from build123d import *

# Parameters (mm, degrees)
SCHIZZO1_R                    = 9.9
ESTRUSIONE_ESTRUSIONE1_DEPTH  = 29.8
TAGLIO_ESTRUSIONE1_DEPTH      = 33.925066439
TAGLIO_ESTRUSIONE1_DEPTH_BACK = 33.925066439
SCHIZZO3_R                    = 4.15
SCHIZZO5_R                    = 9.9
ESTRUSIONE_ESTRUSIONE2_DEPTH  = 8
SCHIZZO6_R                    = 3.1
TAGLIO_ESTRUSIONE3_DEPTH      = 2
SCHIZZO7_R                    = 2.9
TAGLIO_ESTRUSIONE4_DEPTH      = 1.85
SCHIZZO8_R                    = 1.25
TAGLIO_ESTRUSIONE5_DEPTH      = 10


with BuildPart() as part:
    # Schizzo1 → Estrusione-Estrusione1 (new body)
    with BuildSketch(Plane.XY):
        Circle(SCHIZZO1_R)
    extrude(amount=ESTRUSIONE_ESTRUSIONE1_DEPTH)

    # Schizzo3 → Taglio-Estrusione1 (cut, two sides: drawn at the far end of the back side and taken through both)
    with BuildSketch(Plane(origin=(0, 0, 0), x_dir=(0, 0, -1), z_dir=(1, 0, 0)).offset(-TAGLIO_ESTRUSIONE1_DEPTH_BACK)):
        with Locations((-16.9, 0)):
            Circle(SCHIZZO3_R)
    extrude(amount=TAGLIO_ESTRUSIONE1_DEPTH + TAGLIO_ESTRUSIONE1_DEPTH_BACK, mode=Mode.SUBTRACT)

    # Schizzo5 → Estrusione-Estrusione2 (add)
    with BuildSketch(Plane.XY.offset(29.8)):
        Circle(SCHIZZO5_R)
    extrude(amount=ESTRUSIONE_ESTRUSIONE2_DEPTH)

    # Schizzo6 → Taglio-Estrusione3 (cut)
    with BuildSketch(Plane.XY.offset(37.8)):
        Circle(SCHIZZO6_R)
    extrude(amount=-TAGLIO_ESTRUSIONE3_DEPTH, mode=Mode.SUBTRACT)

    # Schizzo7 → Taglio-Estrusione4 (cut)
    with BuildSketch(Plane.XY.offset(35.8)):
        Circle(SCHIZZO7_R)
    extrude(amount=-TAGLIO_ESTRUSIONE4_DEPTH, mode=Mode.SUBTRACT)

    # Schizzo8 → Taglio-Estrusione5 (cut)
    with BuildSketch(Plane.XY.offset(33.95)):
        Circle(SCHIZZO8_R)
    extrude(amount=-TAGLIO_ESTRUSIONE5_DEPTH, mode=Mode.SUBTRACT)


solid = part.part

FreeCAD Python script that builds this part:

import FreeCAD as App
import Part
import Sketcher

V = App.Vector

doc = App.newDocument("Part")
params = doc.addObject("Spreadsheet::Sheet", "Params")
for row, (alias, value) in enumerate([
    ("sketch1_diameter", "19.8 mm"),
    ("pad1_length", "29.8 mm"),
    ("sketch2_diameter", "8.3 mm"),
    ("sketch3_diameter", "19.8 mm"),
    ("pad2_length", "8 mm"),
    ("sketch4_diameter", "6.2 mm"),
    ("pocket2_length", "2 mm"),
    ("sketch5_diameter", "5.8 mm"),
    ("pocket3_length", "1.85 mm"),
    ("sketch6_diameter", "2.5 mm"),
    ("pocket4_length", "10 mm"),
], start=1):
    params.set(f"A{row}", alias)
    params.set(f"B{row}", "=" + value)
    params.setAlias(f"B{row}", alias)

body = doc.addObject("PartDesign::Body", "Body")

# Sketch on XY plane
sketch1 = doc.addObject("Sketcher::SketchObject", "Sketch")
body.addObject(sketch1)
sketch1.AttachmentSupport = (doc.XY_Plane, [""])
sketch1.MapMode = "FlatFace"
sketch1.addGeometry(Part.Circle(V(0, 0, 0), V(0, 0, 1), 10), False)
sketch1.addConstraint(Sketcher.Constraint("Coincident", 0, 3, -1, 1))
sketch1.addConstraint(Sketcher.Constraint("Diameter", 0, 19.8))
sketch1.setExpression("Constraints[1]", "Params.sketch1_diameter")
pad1 = doc.addObject("PartDesign::Pad", "Pad")
body.addObject(pad1)
pad1.Profile = sketch1
pad1.setExpression("Length", "Params.pad1_length")

# Sketch on YZ plane
sketch2 = doc.addObject("Sketcher::SketchObject", "Sketch001")
body.addObject(sketch2)
sketch2.AttachmentSupport = (doc.YZ_Plane, [""])
sketch2.MapMode = "FlatFace"
sketch2.addGeometry(Part.Circle(V(0, 16.9, 0), V(0, 0, 1), 4.2), False)
sketch2.addConstraint(Sketcher.Constraint("PointOnObject", 0, 3, -2))
sketch2.addConstraint(Sketcher.Constraint("Diameter", 0, 8.3))
sketch2.addConstraint(Sketcher.Constraint("DistanceY", -1, 1, 0, 3, 16.9))
sketch2.setExpression("Constraints[1]", "Params.sketch2_diameter")
pocket1 = doc.addObject("PartDesign::Pocket", "Pocket")
body.addObject(pocket1)
pocket1.Profile = sketch2
pocket1.Type = "ThroughAll"
pocket1.Midplane = True

# Sketch on XY plane
sketch3 = doc.addObject("Sketcher::SketchObject", "Sketch002")
body.addObject(sketch3)
sketch3.AttachmentSupport = (doc.XY_Plane, [""])
sketch3.MapMode = "FlatFace"
sketch3.AttachmentOffset = App.Placement(V(0, 0, 29.8), App.Rotation())
sketch3.addGeometry(Part.Circle(V(0, 0, 0), V(0, 0, 1), 10), False)
sketch3.addConstraint(Sketcher.Constraint("Coincident", 0, 3, -1, 1))
sketch3.addConstraint(Sketcher.Constraint("Diameter", 0, 19.8))
sketch3.setExpression("Constraints[1]", "Params.sketch3_diameter")
pad2 = doc.addObject("PartDesign::Pad", "Pad001")
body.addObject(pad2)
pad2.Profile = sketch3
pad2.setExpression("Length", "Params.pad2_length")

# Sketch on XY plane
sketch4 = doc.addObject("Sketcher::SketchObject", "Sketch003")
body.addObject(sketch4)
sketch4.AttachmentSupport = (doc.XY_Plane, [""])
sketch4.MapMode = "FlatFace"
sketch4.AttachmentOffset = App.Placement(V(0, 0, 37.8), App.Rotation())
sketch4.addGeometry(Part.Circle(V(0, 0, 0), V(0, 0, 1), 3.1), False)
sketch4.addConstraint(Sketcher.Constraint("Coincident", 0, 3, -1, 1))
sketch4.addConstraint(Sketcher.Constraint("Diameter", 0, 6.2))
sketch4.setExpression("Constraints[1]", "Params.sketch4_diameter")
pocket2 = doc.addObject("PartDesign::Pocket", "Pocket001")
body.addObject(pocket2)
pocket2.Profile = sketch4
pocket2.setExpression("Length", "Params.pocket2_length")

# Sketch on XY plane
sketch5 = doc.addObject("Sketcher::SketchObject", "Sketch004")
body.addObject(sketch5)
sketch5.AttachmentSupport = (doc.XY_Plane, [""])
sketch5.MapMode = "FlatFace"
sketch5.AttachmentOffset = App.Placement(V(0, 0, 35.8), App.Rotation())
sketch5.addGeometry(Part.Circle(V(0, 0, 0), V(0, 0, 1), 2.9), False)
sketch5.addConstraint(Sketcher.Constraint("Coincident", 0, 3, -1, 1))
sketch5.addConstraint(Sketcher.Constraint("Diameter", 0, 5.8))
sketch5.setExpression("Constraints[1]", "Params.sketch5_diameter")
pocket3 = doc.addObject("PartDesign::Pocket", "Pocket002")
body.addObject(pocket3)
pocket3.Profile = sketch5
pocket3.setExpression("Length", "Params.pocket3_length")

# Sketch on XY plane
sketch6 = doc.addObject("Sketcher::SketchObject", "Sketch005")
body.addObject(sketch6)
sketch6.AttachmentSupport = (doc.XY_Plane, [""])
sketch6.MapMode = "FlatFace"
sketch6.AttachmentOffset = App.Placement(V(0, 0, 33.95), App.Rotation())
sketch6.addGeometry(Part.Circle(V(0, 0, 0), V(0, 0, 1), 1.2), False)
sketch6.addConstraint(Sketcher.Constraint("Coincident", 0, 3, -1, 1))
sketch6.addConstraint(Sketcher.Constraint("Diameter", 0, 2.5))
sketch6.setExpression("Constraints[1]", "Params.sketch6_diameter")
pocket4 = doc.addObject("PartDesign::Pocket", "Pocket003")
body.addObject(pocket4)
pocket4.Profile = sketch6
pocket4.setExpression("Length", "Params.pocket4_length")

doc.recompute()
